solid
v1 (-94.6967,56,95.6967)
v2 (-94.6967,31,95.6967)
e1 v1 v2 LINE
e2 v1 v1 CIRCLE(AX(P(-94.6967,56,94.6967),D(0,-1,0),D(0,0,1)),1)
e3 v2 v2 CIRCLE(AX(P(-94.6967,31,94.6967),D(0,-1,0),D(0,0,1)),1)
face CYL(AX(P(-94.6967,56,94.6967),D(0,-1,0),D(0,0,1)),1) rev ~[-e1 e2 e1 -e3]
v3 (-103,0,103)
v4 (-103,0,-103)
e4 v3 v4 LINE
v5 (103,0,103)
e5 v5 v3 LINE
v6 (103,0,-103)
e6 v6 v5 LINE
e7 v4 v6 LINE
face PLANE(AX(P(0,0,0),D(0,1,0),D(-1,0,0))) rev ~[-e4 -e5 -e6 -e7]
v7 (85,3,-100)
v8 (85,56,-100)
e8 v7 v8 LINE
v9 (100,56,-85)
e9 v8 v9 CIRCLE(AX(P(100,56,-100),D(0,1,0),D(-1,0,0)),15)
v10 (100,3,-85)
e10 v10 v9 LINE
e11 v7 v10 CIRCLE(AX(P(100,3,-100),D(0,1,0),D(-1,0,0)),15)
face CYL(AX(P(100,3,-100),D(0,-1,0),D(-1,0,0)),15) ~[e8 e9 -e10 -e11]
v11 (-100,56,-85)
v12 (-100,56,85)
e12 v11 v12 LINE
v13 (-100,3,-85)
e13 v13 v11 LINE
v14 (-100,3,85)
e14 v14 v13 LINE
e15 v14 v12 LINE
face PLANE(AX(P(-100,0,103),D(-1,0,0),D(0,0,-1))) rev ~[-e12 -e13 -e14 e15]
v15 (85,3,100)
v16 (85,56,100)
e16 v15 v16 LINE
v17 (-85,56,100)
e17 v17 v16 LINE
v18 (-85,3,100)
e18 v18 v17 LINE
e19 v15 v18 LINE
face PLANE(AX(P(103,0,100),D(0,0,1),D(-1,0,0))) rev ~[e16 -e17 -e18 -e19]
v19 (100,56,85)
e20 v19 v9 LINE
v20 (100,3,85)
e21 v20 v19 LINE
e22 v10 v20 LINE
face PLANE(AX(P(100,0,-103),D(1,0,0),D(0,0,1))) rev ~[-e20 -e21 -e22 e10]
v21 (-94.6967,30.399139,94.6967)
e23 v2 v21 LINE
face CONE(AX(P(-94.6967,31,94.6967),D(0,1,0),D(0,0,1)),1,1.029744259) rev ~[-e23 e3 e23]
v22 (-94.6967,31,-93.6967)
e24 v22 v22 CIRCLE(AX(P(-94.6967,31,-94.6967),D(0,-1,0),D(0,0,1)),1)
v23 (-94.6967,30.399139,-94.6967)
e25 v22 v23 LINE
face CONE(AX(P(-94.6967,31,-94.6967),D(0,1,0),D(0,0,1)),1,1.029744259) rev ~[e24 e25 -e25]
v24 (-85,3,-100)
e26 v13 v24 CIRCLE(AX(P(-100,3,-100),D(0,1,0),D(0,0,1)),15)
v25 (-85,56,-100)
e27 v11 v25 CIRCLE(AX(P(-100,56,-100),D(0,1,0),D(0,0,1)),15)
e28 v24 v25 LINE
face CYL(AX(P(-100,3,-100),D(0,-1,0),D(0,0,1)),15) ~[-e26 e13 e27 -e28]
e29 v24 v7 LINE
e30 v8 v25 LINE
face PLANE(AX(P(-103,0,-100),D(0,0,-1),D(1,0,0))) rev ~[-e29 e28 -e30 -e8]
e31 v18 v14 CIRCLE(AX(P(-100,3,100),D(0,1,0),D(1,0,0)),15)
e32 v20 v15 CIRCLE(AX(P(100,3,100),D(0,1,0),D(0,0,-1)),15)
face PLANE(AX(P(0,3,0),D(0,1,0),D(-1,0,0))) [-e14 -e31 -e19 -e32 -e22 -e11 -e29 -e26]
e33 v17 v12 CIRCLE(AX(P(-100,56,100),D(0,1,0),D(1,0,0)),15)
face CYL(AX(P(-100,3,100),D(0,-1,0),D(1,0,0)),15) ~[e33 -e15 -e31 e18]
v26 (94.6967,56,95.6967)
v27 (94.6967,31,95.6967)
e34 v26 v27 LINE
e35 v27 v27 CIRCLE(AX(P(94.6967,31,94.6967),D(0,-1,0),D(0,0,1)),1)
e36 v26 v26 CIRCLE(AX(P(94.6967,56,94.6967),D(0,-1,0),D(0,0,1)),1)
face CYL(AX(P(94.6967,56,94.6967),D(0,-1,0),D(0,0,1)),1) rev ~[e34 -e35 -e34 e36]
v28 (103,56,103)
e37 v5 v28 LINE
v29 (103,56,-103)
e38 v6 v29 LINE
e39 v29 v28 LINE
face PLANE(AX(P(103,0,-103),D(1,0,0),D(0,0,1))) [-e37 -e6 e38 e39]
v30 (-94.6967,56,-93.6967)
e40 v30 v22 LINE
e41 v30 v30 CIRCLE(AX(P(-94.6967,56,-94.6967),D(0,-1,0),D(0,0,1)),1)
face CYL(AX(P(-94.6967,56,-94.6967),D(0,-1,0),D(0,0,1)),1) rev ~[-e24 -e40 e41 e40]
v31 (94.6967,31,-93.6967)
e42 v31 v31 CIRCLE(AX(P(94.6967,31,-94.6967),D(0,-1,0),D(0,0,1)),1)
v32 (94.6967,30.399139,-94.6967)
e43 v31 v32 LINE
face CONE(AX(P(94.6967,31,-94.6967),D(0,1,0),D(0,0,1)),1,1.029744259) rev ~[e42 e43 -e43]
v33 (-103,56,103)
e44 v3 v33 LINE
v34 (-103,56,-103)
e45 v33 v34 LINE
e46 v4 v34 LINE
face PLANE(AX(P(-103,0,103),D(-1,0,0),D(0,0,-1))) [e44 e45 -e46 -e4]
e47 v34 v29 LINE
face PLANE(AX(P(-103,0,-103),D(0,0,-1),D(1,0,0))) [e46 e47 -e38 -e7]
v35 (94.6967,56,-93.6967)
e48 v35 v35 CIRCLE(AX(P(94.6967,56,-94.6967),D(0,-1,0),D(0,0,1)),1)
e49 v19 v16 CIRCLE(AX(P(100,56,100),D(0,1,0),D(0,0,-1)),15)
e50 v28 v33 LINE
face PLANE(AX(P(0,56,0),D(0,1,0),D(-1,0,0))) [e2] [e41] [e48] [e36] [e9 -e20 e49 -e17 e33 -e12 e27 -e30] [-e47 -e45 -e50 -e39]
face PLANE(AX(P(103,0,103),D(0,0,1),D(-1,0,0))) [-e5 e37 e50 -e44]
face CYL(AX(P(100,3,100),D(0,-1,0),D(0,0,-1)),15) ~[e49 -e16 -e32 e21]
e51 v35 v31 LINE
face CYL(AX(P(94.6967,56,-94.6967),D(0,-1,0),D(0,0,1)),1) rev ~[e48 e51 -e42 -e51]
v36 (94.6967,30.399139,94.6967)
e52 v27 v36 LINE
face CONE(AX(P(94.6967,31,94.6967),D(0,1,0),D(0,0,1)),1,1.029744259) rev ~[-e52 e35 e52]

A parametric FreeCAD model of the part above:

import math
import FreeCAD as App
import Part
import Sketcher
from FreeCAD import Vector
Q = App.Units.Quantity


def faces_at(feature, points):
    """Names of the faces that lie closest to the given points."""
    faces = feature.Shape.Faces
    near = lambda p: min(range(len(faces)), key=lambda i: faces[i].distToShape(Part.Vertex(*p))[0])
    return sorted({f"Face{near(p) + 1}" for p in points})


def add_polygon(sketch, points):
    """Adds a closed chain of lines whose ends are joined by coincident constraints."""
    first, n = sketch.GeometryCount, len(points)
    for a, b in zip(points, points[1:] + points[:1]):
        sketch.addGeometry(Part.LineSegment(App.Vector(*a, 0), App.Vector(*b, 0)), False)
    for i in range(n):
        sketch.addConstraint(Sketcher.Constraint("Coincident", first + i, 2, first + (i + 1) % n, 1))

doc = App.newDocument("Part")
body = doc.addObject("PartDesign::Body", "Body")

# Sketch on XZ plane
sketch1 = body.newObject("Sketcher::SketchObject", "Sketch")
sketch1.AttachmentSupport = (doc.getObject("XZ_Plane"), [""])
sketch1.MapMode = "FlatFace"
add_polygon(sketch1, [(-103, 103), (103, 103), (103, -103), (-103, -103)])  # lines 0-3
sketch1.addConstraint(Sketcher.Constraint("Horizontal", 0))
sketch1.addConstraint(Sketcher.Constraint("Vertical", 1))
sketch1.addConstraint(Sketcher.Constraint("Horizontal", 2))
sketch1.addConstraint(Sketcher.Constraint("Vertical", 3))
sketch1.addConstraint(Sketcher.Constraint("Symmetric", 0, 2, 2, 2, -1, 1))
sketch1.addConstraint(Sketcher.Constraint("Equal", 2, 1))
sketch1.addConstraint(Sketcher.Constraint("DistanceX", 0, 1, 0, 2, Q("206 mm")))
pad1 = body.newObject("PartDesign::Pad", "Pad")
pad1.Profile = sketch1
pad1.Length = 56
pad1.Reversed = True
doc.recompute()

thickness = body.newObject("PartDesign::Thickness", "Thickness")
thickness.Base = (pad1, faces_at(pad1, [(34.333, 56, 34.333)]))
thickness.Value = 3
thickness.Reversed = True
thickness.Join = "Intersection"

# Sketch on XZ plane
sketch2 = body.newObject("Sketcher::SketchObject", "Sketch001")
sketch2.AttachmentSupport = (doc.getObject("XZ_Plane"), [""])
sketch2.MapMode = "FlatFace"
sketch2.AttachmentOffset = App.Placement(Vector(0, 0, -3), App.Rotation())
sketch2.addGeometry(Part.LineSegment(Vector(100, -85, 0), Vector(100, -100, 0)), False)
sketch2.addGeometry(Part.LineSegment(Vector(100, -100, 0), Vector(85, -100, 0)), False)
sketch2.addGeometry(Part.ArcOfCircle(Part.Circle(Vector(100, -100, 0), Vector(0, 0, 1), 15), math.radians(90), math.radians(180)), False)
sketch2.addGeometry(Part.ArcOfCircle(Part.Circle(Vector(-100, -100, 0), Vector(0, 0, 1), 15), math.radians(0), math.radians(90)), False)
sketch2.addGeometry(Part.LineSegment(Vector(-85, -100, 0), Vector(-100, -100, 0)), False)
sketch2.addGeometry(Part.LineSegment(Vector(-100, -100, 0), Vector(-100, -85, 0)), False)
sketch2.addGeometry(Part.LineSegment(Vector(100, 100, 0), Vector(100, 85, 0)), False)
sketch2.addGeometry(Part.ArcOfCircle(Part.Circle(Vector(100, 100, 0), Vector(0, 0, 1), 15), math.radians(180), math.radians(270)), False)
sketch2.addGeometry(Part.LineSegment(Vector(85, 100, 0), Vector(100, 100, 0)), False)
sketch2.addGeometry(Part.ArcOfCircle(Part.Circle(Vector(-100, 100, 0), Vector(0, 0, 1), 15), math.radians(-90), math.radians(0)), False)
sketch2.addGeometry(Part.LineSegment(Vector(-100, 85, 0), Vector(-100, 100, 0)), False)
sketch2.addGeometry(Part.LineSegment(Vector(-100, 100, 0), Vector(-85, 100, 0)), False)
sketch2.addConstraint(Sketcher.Constraint("Coincident", 0, 2, 1, 1))
sketch2.addConstraint(Sketcher.Constraint("Coincident", 1, 2, 2, 2))
sketch2.addConstraint(Sketcher.Constraint("Coincident", 2, 1, 0, 1))
sketch2.addConstraint(Sketcher.Constraint("Coincident", 3, 1, 4, 1))
sketch2.addConstraint(Sketcher.Constraint("Coincident", 4, 2, 5, 1))
sketch2.addConstraint(Sketcher.Constraint("Coincident", 5, 2, 3, 2))
sketch2.addConstraint(Sketcher.Constraint("Coincident", 6, 2, 7, 2))
sketch2.addConstraint(Sketcher.Constraint("Coincident", 7, 1, 8, 1))
sketch2.addConstraint(Sketcher.Constraint("Coincident", 8, 2, 6, 1))
sketch2.addConstraint(Sketcher.Constraint("Coincident", 9, 1, 10, 1))
sketch2.addConstraint(Sketcher.Constraint("Coincident", 10, 2, 11, 1))
sketch2.addConstraint(Sketcher.Constraint("Coincident", 11, 2, 9, 2))
sketch2.addConstraint(Sketcher.Constraint("Vertical", 0))
sketch2.addConstraint(Sketcher.Constraint("Horizontal", 1))
sketch2.addConstraint(Sketcher.Constraint("Horizontal", 4))
sketch2.addConstraint(Sketcher.Constraint("Vertical", 5))
sketch2.addConstraint(Sketcher.Constraint("Vertical", 6))
sketch2.addConstraint(Sketcher.Constraint("Horizontal", 8))
sketch2.addConstraint(Sketcher.Constraint("Vertical", 10))
sketch2.addConstraint(Sketcher.Constraint("Horizontal", 11))
sketch2.addConstraint(Sketcher.Constraint("Coincident", 0, 2, 2, 3))
sketch2.addConstraint(Sketcher.Constraint("Coincident", 4, 2, 3, 3))
sketch2.addConstraint(Sketcher.Constraint("Coincident", 8, 2, 7, 3))
sketch2.addConstraint(Sketcher.Constraint("Coincident", 10, 2, 9, 3))
sketch2.addConstraint(Sketcher.Constraint("Equal", 2, 3))
sketch2.addConstraint(Sketcher.Constraint("Equal", 3, 7))
sketch2.addConstraint(Sketcher.Constraint("Equal", 7, 9))
sketch2.addConstraint(Sketcher.Constraint("Symmetric", 3, 3, 7, 3, -1, 1))
sketch2.addConstraint(Sketcher.Constraint("Symmetric", 2, 3, 9, 3, -1, 1))
sketch2.addConstraint(Sketcher.Constraint("Symmetric", 2, 3, 3, 3, -2))
sketch2.addConstraint(Sketcher.Constraint("Radius", 2, Q("15 mm")))
sketch2.addConstraint(Sketcher.Constraint("DistanceX", -1, 1, 2, 3, Q("100 mm")))
sketch2.addConstraint(Sketcher.Constraint("DistanceY", 2, 3, -1, 1, Q("100 mm")))
pad2 = body.newObject("PartDesign::Pad", "Pad001")
pad2.Profile = sketch2
pad2.Length = 53
pad2.Reversed = True

# Sketch on XZ plane
sketch3 = body.newObject("Sketcher::SketchObject", "Sketch002")
sketch3.AttachmentSupport = (doc.getObject("XZ_Plane"), [""])
sketch3.MapMode = "FlatFace"
sketch3.AttachmentOffset = App.Placement(Vector(0, 0, -56), App.Rotation())
sketch3.addGeometry(Part.Circle(Vector(-94.7, -94.7, 0), Vector(0, 0, 1), 1), False)
sketch3.addGeometry(Part.Circle(Vector(-94.7, 94.7, 0), Vector(0, 0, 1), 1), False)
sketch3.addGeometry(Part.Circle(Vector(94.7, 94.7, 0), Vector(0, 0, 1), 1), False)
sketch3.addGeometry(Part.Circle(Vector(94.7, -94.7, 0), Vector(0, 0, 1), 1), False)
sketch3.addConstraint(Sketcher.Constraint("Equal", 0, 1))
sketch3.addConstraint(Sketcher.Constraint("Equal", 1, 2))
sketch3.addConstraint(Sketcher.Constraint("Equal", 2, 3))
sketch3.addConstraint(Sketcher.Constraint("Symmetric", 0, 3, 2, 3, -1, 1))
sketch3.addConstraint(Sketcher.Constraint("Symmetric", 1, 3, 3, 3, -1, 1))
sketch3.addConstraint(Sketcher.Constraint("Symmetric", 1, 3, 2, 3, -2))
sketch3.addConstraint(Sketcher.Constraint("Diameter", 0, Q("2 mm")))
sketch3.addConstraint(Sketcher.Constraint("DistanceX", 0, 3, -1, 1, Q("94.6967 mm")))
sketch3.addConstraint(Sketcher.Constraint("DistanceY", 0, 3, -1, 1, Q("94.6967 mm")))
doc.recompute()
hole = body.newObject("PartDesign::Hole", "Hole")
hole.Profile = sketch3
hole.ThreadType = "None"
hole.Diameter = 2
hole.DepthType = "Dimension"
hole.Depth = 25
hole.DrillPoint = "Angled"
hole.DrillPointAngle = 118
hole.Reversed = True

doc.recompute()
